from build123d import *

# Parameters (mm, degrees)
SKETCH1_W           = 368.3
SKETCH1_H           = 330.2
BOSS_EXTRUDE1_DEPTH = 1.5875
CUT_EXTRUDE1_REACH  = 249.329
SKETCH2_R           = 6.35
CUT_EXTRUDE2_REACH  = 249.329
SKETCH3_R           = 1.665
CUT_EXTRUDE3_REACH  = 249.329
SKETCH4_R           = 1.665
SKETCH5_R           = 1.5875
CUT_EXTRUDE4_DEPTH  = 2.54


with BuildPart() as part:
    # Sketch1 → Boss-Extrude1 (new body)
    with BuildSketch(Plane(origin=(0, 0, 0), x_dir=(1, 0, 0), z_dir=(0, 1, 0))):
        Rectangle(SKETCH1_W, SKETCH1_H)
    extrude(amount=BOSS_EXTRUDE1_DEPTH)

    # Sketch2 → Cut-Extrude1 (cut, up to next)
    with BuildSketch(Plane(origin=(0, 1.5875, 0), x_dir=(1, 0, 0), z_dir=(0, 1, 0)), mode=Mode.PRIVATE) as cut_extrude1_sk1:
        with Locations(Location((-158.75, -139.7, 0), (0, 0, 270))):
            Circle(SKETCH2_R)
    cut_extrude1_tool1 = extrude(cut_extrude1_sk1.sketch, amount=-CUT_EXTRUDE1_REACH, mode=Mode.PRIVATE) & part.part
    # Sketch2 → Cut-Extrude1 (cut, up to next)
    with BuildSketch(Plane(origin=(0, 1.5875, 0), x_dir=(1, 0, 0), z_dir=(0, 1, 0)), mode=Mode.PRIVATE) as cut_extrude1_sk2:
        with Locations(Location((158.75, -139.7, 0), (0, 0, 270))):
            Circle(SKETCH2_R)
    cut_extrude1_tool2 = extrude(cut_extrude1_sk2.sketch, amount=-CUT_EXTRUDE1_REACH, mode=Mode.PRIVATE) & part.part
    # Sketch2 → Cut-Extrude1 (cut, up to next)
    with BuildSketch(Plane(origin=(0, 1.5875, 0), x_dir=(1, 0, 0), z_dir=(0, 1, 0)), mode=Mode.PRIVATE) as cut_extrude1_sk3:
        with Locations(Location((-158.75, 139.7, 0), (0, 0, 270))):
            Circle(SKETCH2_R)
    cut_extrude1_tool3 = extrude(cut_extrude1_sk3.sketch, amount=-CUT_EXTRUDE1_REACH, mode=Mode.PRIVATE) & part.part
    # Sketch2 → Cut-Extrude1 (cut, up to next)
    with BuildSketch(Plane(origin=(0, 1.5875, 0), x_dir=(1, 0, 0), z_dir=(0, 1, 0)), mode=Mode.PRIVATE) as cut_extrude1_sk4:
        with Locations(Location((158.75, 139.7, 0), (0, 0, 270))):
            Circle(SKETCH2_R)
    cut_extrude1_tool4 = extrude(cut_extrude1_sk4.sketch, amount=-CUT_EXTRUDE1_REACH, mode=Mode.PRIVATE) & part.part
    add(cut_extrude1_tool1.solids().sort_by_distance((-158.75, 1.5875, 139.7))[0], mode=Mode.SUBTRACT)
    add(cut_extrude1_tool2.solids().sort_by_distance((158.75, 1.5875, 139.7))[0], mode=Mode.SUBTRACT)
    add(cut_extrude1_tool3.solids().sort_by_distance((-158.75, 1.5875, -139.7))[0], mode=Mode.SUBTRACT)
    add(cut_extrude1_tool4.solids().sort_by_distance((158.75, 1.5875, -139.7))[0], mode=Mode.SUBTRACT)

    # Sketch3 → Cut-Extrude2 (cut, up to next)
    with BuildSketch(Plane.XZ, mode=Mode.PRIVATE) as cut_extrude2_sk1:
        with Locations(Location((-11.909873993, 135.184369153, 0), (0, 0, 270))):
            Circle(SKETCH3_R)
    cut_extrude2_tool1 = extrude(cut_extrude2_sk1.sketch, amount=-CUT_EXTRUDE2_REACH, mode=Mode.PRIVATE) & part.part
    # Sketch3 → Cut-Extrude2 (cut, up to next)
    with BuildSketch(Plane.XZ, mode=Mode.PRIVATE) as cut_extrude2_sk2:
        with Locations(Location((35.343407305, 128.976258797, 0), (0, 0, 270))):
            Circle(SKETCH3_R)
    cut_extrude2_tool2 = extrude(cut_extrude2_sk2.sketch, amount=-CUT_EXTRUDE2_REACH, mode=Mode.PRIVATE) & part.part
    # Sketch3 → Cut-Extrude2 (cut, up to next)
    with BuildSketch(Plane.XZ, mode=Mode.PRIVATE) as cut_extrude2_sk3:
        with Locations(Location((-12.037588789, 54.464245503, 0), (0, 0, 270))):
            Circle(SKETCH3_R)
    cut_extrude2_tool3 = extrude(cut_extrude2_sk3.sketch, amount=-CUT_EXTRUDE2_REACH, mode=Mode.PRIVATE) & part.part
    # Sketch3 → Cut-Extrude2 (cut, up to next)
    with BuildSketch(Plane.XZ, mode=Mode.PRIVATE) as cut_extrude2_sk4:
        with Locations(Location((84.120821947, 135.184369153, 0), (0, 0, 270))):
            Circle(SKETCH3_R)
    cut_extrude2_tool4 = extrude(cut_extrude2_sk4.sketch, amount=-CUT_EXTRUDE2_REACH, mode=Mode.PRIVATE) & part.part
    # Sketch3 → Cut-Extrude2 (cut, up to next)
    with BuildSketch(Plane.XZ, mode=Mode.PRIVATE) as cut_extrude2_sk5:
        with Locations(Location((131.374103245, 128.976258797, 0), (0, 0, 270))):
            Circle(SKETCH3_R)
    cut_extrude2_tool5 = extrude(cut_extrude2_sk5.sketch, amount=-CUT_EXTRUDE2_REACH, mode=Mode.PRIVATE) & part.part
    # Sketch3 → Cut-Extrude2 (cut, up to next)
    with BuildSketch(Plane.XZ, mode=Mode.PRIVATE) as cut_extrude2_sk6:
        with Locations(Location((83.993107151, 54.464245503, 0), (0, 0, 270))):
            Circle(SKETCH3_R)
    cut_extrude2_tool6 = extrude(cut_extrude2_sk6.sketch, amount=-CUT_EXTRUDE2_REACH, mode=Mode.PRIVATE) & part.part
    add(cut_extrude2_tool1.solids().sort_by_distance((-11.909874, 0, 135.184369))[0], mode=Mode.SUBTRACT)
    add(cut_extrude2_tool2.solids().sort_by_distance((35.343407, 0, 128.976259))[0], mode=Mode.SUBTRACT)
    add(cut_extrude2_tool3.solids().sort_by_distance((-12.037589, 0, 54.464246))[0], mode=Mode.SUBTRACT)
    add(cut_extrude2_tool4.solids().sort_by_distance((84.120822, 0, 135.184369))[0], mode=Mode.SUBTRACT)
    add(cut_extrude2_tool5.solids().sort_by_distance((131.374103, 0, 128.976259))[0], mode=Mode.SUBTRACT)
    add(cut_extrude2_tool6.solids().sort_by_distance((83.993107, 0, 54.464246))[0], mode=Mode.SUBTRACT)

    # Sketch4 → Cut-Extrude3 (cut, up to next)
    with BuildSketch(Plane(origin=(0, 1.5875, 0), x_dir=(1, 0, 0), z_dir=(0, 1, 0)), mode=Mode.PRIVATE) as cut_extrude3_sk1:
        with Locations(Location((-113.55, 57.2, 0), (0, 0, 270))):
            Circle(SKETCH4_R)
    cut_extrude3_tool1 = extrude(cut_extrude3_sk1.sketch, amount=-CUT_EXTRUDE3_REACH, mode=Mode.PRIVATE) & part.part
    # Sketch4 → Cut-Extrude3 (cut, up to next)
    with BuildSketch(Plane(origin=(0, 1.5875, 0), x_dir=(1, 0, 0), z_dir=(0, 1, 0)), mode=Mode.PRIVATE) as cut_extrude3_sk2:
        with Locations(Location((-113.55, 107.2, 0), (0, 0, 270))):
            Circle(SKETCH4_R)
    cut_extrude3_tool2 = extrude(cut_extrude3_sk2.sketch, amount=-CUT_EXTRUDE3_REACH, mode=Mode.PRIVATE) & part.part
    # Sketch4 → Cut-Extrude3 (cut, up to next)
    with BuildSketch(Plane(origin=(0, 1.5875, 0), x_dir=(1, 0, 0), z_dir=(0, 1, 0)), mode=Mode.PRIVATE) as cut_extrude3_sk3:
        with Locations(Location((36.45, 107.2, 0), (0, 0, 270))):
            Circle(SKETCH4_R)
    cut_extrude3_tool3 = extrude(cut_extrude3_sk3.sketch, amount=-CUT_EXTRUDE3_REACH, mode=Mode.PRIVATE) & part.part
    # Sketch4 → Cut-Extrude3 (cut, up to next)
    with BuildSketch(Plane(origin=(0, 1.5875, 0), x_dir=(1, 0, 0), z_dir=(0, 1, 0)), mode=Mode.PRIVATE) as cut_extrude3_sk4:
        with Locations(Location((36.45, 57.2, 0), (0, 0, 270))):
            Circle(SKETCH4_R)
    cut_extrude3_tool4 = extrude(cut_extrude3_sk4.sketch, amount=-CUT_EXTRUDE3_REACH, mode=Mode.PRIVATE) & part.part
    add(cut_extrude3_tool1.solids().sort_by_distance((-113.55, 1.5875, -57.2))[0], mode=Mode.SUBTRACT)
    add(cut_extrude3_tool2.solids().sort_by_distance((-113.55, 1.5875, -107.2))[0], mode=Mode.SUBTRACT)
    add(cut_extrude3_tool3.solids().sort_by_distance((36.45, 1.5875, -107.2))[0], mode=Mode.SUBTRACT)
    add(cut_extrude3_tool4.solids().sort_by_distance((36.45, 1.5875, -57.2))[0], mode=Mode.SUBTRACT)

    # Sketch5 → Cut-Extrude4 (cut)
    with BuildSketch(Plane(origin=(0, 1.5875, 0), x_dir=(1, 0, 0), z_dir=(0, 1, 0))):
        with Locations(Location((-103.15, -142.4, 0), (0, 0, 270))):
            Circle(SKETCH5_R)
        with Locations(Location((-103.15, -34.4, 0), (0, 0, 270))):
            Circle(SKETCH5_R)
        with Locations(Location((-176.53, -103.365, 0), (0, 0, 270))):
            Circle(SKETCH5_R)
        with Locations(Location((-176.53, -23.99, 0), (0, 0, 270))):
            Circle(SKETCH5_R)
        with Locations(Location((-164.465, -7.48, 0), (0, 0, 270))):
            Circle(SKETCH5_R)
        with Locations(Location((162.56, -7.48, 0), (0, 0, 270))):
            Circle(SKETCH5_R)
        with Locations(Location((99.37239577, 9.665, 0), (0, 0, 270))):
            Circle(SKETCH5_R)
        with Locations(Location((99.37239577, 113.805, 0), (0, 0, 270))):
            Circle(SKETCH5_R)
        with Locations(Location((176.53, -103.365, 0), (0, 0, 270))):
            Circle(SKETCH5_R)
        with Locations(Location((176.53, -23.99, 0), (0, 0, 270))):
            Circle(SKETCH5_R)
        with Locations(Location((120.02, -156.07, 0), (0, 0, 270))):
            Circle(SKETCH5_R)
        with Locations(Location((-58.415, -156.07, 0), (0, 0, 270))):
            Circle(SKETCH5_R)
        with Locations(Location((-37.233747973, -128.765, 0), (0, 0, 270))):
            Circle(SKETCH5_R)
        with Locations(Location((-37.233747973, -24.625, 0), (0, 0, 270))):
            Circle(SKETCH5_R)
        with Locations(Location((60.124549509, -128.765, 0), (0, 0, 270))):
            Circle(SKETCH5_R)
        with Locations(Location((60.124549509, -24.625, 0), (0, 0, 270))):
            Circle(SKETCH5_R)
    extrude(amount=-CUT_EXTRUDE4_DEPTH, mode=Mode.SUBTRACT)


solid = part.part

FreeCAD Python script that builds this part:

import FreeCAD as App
import Part
import Sketcher
Q = App.Units.Quantity

doc = App.newDocument("Part")
body = doc.addObject("PartDesign::Body", "Body")

sketch1 = doc.addObject("Sketcher::SketchObject", "Sketch")
body.addObject(sketch1)
sketch1.AttachmentSupport = (doc.XZ_Plane, [""])
sketch1.MapMode = "FlatFace"
sketch1.addGeometry(Part.LineSegment(App.Vector(-184, -165, 0), App.Vector(-184, 165, 0)), False)
sketch1.addGeometry(Part.LineSegment(App.Vector(-184, 165, 0), App.Vector(184, 165, 0)), False)
sketch1.addGeometry(Part.LineSegment(App.Vector(184, 165, 0), App.Vector(184, -165, 0)), False)
sketch1.addGeometry(Part.LineSegment(App.Vector(184, -165, 0), App.Vector(-184, -165, 0)), False)
sketch1.addConstraint(Sketcher.Constraint("Coincident", 0, 2, 1, 1))
sketch1.addConstraint(Sketcher.Constraint("Coincident", 1, 2, 2, 1))
sketch1.addConstraint(Sketcher.Constraint("Coincident", 2, 2, 3, 1))
sketch1.addConstraint(Sketcher.Constraint("Coincident", 3, 2, 0, 1))
sketch1.addConstraint(Sketcher.Constraint("Vertical", 0))
sketch1.addConstraint(Sketcher.Constraint("Horizontal", 1))
sketch1.addConstraint(Sketcher.Constraint("Vertical", 2))
sketch1.addConstraint(Sketcher.Constraint("Horizontal", 3))
sketch1.addConstraint(Sketcher.Constraint("Symmetric", 0, 2, 2, 2, -1, 1))
sketch1.addConstraint(Sketcher.Constraint("DistanceY", 0, 1, 0, 2, Q("13 in")))
sketch1.addConstraint(Sketcher.Constraint("DistanceX", 1, 1, 1, 2, Q("14.5 in")))
pad1 = doc.addObject("PartDesign::Pad", "Pad")
body.addObject(pad1)
pad1.Profile = sketch1
pad1.Length = Q("0.0625 in")
pad1.Reversed = True

sketch2 = doc.addObject("Sketcher::SketchObject", "Sketch001")
body.addObject(sketch2)
sketch2.AttachmentSupport = (doc.XZ_Plane, [""])
sketch2.MapMode = "FlatFace"
sketch2.AttachmentOffset = App.Placement(App.Vector(0, 0, -0.0625 * 25.4), App.Rotation())
sketch2.addGeometry(Part.Circle(App.Vector(-159, 140, 0), App.Vector(0, 0, 1), 6), False)
sketch2.addConstraint(Sketcher.Constraint("Diameter", 0, Q("0.5 in")))
sketch2.addConstraint(Sketcher.Constraint("DistanceY", -1, 1, 0, 3, Q("5.5 in")))
sketch2.addConstraint(Sketcher.Constraint("DistanceX", 0, 3, -1, 1, Q("6.25 in")))
pocket1 = doc.addObject("PartDesign::Pocket", "Pocket")
body.addObject(pocket1)
pocket1.Profile = sketch2
pocket1.Type = "UpToFirst"
pocket1.Reversed = True

sketch3 = doc.addObject("Sketcher::SketchObject", "Sketch002")
body.addObject(sketch3)
sketch3.AttachmentSupport = (doc.XZ_Plane, [""])
sketch3.MapMode = "FlatFace"
sketch3.AttachmentOffset = App.Placement(App.Vector(0, 0, -0.0625 * 25.4), App.Rotation())
sketch3.addGeometry(Part.Circle(App.Vector(159, 140, 0), App.Vector(0, 0, 1), 6), False)
sketch3.addConstraint(Sketcher.Constraint("Diameter", 0, Q("0.5 in")))
sketch3.addConstraint(Sketcher.Constraint("DistanceY", -1, 1, 0, 3, Q("5.5 in")))
sketch3.addConstraint(Sketcher.Constraint("DistanceX", -1, 1, 0, 3, Q("6.25 in")))
pocket2 = doc.addObject("PartDesign::Pocket", "Pocket001")
body.addObject(pocket2)
pocket2.Profile = sketch3
pocket2.Type = "UpToFirst"
pocket2.Reversed = True

sketch4 = doc.addObject("Sketcher::SketchObject", "Sketch003")
body.addObject(sketch4)
sketch4.AttachmentSupport = (doc.XZ_Plane, [""])
sketch4.MapMode = "FlatFace"
sketch4.AttachmentOffset = App.Placement(App.Vector(0, 0, -0.0625 * 25.4), App.Rotation())
sketch4.addGeometry(Part.Circle(App.Vector(-159, -140, 0), App.Vector(0, 0, 1), 6), False)
sketch4.addConstraint(Sketcher.Constraint("Diameter", 0, Q("0.5 in")))
sketch4.addConstraint(Sketcher.Constraint("DistanceY", 0, 3, -1, 1, Q("5.5 in")))
sketch4.addConstraint(Sketcher.Constraint("DistanceX", 0, 3, -1, 1, Q("6.25 in")))
pocket3 = doc.addObject("PartDesign::Pocket", "Pocket002")
body.addObject(pocket3)
pocket3.Profile = sketch4
pocket3.Type = "UpToFirst"
pocket3.Reversed = True

sketch5 = doc.addObject("Sketcher::SketchObject", "Sketch004")
body.addObject(sketch5)
sketch5.AttachmentSupport = (doc.XZ_Plane, [""])
sketch5.MapMode = "FlatFace"
sketch5.AttachmentOffset = App.Placement(App.Vector(0, 0, -0.0625 * 25.4), App.Rotation())
sketch5.addGeometry(Part.Circle(App.Vector(159, -140, 0), App.Vector(0, 0, 1), 6), False)
sketch5.addConstraint(Sketcher.Constraint("Diameter", 0, Q("0.5 in")))
sketch5.addConstraint(Sketcher.Constraint("DistanceY", 0, 3, -1, 1, Q("5.5 in")))
sketch5.addConstraint(Sketcher.Constraint("DistanceX", -1, 1, 0, 3, Q("6.25 in")))
pocket4 = doc.addObject("PartDesign::Pocket", "Pocket003")
body.addObject(pocket4)
pocket4.Profile = sketch5
pocket4.Type = "UpToFirst"
pocket4.Reversed = True

sketch6 = doc.addObject("Sketcher::SketchObject", "Sketch005")
body.addObject(sketch6)
sketch6.AttachmentSupport = (doc.XZ_Plane, [""])
sketch6.MapMode = "FlatFace"
sketch6.addGeometry(Part.Circle(App.Vector(-11.9, 135.2, 0), App.Vector(0, 0, 1), 1.7), False)
sketch6.addConstraint(Sketcher.Constraint("Diameter", 0, Q("3.33 mm")))
sketch6.addConstraint(Sketcher.Constraint("DistanceY", -1, 1, 0, 3, Q("135.184369 mm")))
sketch6.addConstraint(Sketcher.Constraint("DistanceX", 0, 3, -1, 1, Q("11.909874 mm")))
pocket5 = doc.addObject("PartDesign::Pocket", "Pocket004")
body.addObject(pocket5)
pocket5.Profile = sketch6
pocket5.Type = "UpToFirst"

sketch7 = doc.addObject("Sketcher::SketchObject", "Sketch006")
body.addObject(sketch7)
sketch7.AttachmentSupport = (doc.XZ_Plane, [""])
sketch7.MapMode = "FlatFace"
sketch7.addGeometry(Part.Circle(App.Vector(35.3, 129, 0), App.Vector(0, 0, 1), 1.7), False)
sketch7.addConstraint(Sketcher.Constraint("Diameter", 0, Q("3.33 mm")))
sketch7.addConstraint(Sketcher.Constraint("DistanceY", -1, 1, 0, 3, Q("128.976259 mm")))
sketch7.addConstraint(Sketcher.Constraint("DistanceX", -1, 1, 0, 3, Q("35.343407 mm")))
pocket6 = doc.addObject("PartDesign::Pocket", "Pocket005")
body.addObject(pocket6)
pocket6.Profile = sketch7
pocket6.Type = "UpToFirst"

sketch8 = doc.addObject("Sketcher::SketchObject", "Sketch007")
body.addObject(sketch8)
sketch8.AttachmentSupport = (doc.XZ_Plane, [""])
sketch8.MapMode = "FlatFace"
sketch8.addGeometry(Part.Circle(App.Vector(-12, 54.5, 0), App.Vector(0, 0, 1), 1.7), False)
sketch8.addConstraint(Sketcher.Constraint("Diameter", 0, Q("3.33 mm")))
sketch8.addConstraint(Sketcher.Constraint("DistanceX", 0, 3, -1, 1, Q("12.037589 mm")))
sketch8.addConstraint(Sketcher.Constraint("DistanceY", -1, 1, 0, 3, Q("54.464246 mm")))
pocket7 = doc.addObject("PartDesign::Pocket", "Pocket006")
body.addObject(pocket7)
pocket7.Profile = sketch8
pocket7.Type = "UpToFirst"

sketch9 = doc.addObject("Sketcher::SketchObject", "Sketch008")
body.addObject(sketch9)
sketch9.AttachmentSupport = (doc.XZ_Plane, [""])
sketch9.MapMode = "FlatFace"
sketch9.addGeometry(Part.Circle(App.Vector(84.1, 135.2, 0), App.Vector(0, 0, 1), 1.7), False)
sketch9.addConstraint(Sketcher.Constraint("Diameter", 0, Q("3.33 mm")))
sketch9.addConstraint(Sketcher.Constraint("DistanceX", -1, 1, 0, 3, Q("84.120822 mm")))
sketch9.addConstraint(Sketcher.Constraint("DistanceY", -1, 1, 0, 3, Q("135.184369 mm")))
pocket8 = doc.addObject("PartDesign::Pocket", "Pocket007")
body.addObject(pocket8)
pocket8.Profile = sketch9
pocket8.Type = "UpToFirst"

sketch10 = doc.addObject("Sketcher::SketchObject", "Sketch009")
body.addObject(sketch10)
sketch10.AttachmentSupport = (doc.XZ_Plane, [""])
sketch10.MapMode = "FlatFace"
sketch10.addGeometry(Part.Circle(App.Vector(131.4, 129, 0), App.Vector(0, 0, 1), 1.7), False)
sketch10.addConstraint(Sketcher.Constraint("Diameter", 0, Q("3.33 mm")))
sketch10.addConstraint(Sketcher.Constraint("DistanceY", -1, 1, 0, 3, Q("128.976259 mm")))
sketch10.addConstraint(Sketcher.Constraint("DistanceX", -1, 1, 0, 3, Q("131.374103 mm")))
pocket9 = doc.addObject("PartDesign::Pocket", "Pocket008")
body.addObject(pocket9)
pocket9.Profile = sketch10
pocket9.Type = "UpToFirst"

sketch11 = doc.addObject("Sketcher::SketchObject", "Sketch010")
body.addObject(sketch11)
sketch11.AttachmentSupport = (doc.XZ_Plane, [""])
sketch11.MapMode = "FlatFace"
sketch11.addGeometry(Part.Circle(App.Vector(84, 54.5, 0), App.Vector(0, 0, 1), 1.7), False)
sketch11.addConstraint(Sketcher.Constraint("Diameter", 0, Q("3.33 mm")))
sketch11.addConstraint(Sketcher.Constraint("DistanceX", -1, 1, 0, 3, Q("83.993107 mm")))
sketch11.addConstraint(Sketcher.Constraint("DistanceY", -1, 1, 0, 3, Q("54.464246 mm")))
pocket10 = doc.addObject("PartDesign::Pocket", "Pocket009")
body.addObject(pocket10)
pocket10.Profile = sketch11
pocket10.Type = "UpToFirst"

sketch12 = doc.addObject("Sketcher::SketchObject", "Sketch011")
body.addObject(sketch12)
sketch12.AttachmentSupport = (doc.XZ_Plane, [""])
sketch12.MapMode = "FlatFace"
sketch12.AttachmentOffset = App.Placement(App.Vector(0, 0, -0.0625 * 25.4), App.Rotation())
sketch12.addGeometry(Part.Circle(App.Vector(-113.5, -57.2, 0), App.Vector(0, 0, 1), 1.7), False)
sketch12.addConstraint(Sketcher.Constraint("Diameter", 0, Q("3.33 mm")))
sketch12.addConstraint(Sketcher.Constraint("DistanceX", 0, 3, -1, 1, Q("113.55 mm")))
sketch12.addConstraint(Sketcher.Constraint("DistanceY", 0, 3, -1, 1, Q("57.2 mm")))
pocket11 = doc.addObject("PartDesign::Pocket", "Pocket010")
body.addObject(pocket11)
pocket11.Profile = sketch12
pocket11.Type = "UpToFirst"
pocket11.Reversed = True

sketch13 = doc.addObject("Sketcher::SketchObject", "Sketch012")
body.addObject(sketch13)
sketch13.AttachmentSupport = (doc.XZ_Plane, [""])
sketch13.MapMode = "FlatFace"
sketch13.AttachmentOffset = App.Placement(App.Vector(0, 0, -0.0625 * 25.4), App.Rotation())
sketch13.addGeometry(Part.Circle(App.Vector(-113.5, -107.2, 0), App.Vector(0, 0, 1), 1.7), False)
sketch13.addConstraint(Sketcher.Constraint("Diameter", 0, Q("3.33 mm")))
sketch13.addConstraint(Sketcher.Constraint("DistanceX", 0, 3, -1, 1, Q("113.55 mm")))
sketch13.addConstraint(Sketcher.Constraint("DistanceY", 0, 3, -1, 1, Q("107.2 mm")))
pocket12 = doc.addObject("PartDesign::Pocket", "Pocket011")
body.addObject(pocket12)
pocket12.Profile = sketch13
pocket12.Type = "UpToFirst"
pocket12.Reversed = True

sketch14 = doc.addObject("Sketcher::SketchObject", "Sketch013")
body.addObject(sketch14)
sketch14.AttachmentSupport = (doc.XZ_Plane, [""])
sketch14.MapMode = "FlatFace"
sketch14.AttachmentOffset = App.Placement(App.Vector(0, 0, -0.0625 * 25.4), App.Rotation())
sketch14.addGeometry(Part.Circle(App.Vector(36.5, -107.2, 0), App.Vector(0, 0, 1), 1.7), False)
sketch14.addConstraint(Sketcher.Constraint("Diameter", 0, Q("3.33 mm")))
sketch14.addConstraint(Sketcher.Constraint("DistanceX", -1, 1, 0, 3, Q("36.45 mm")))
sketch14.addConstraint(Sketcher.Constraint("DistanceY", 0, 3, -1, 1, Q("107.2 mm")))
pocket13 = doc.addObject("PartDesign::Pocket", "Pocket012")
body.addObject(pocket13)
pocket13.Profile = sketch14
pocket13.Type = "UpToFirst"
pocket13.Reversed = True

sketch15 = doc.addObject("Sketcher::SketchObject", "Sketch014")
body.addObject(sketch15)
sketch15.AttachmentSupport = (doc.XZ_Plane, [""])
sketch15.MapMode = "FlatFace"
sketch15.AttachmentOffset = App.Placement(App.Vector(0, 0, -0.0625 * 25.4), App.Rotation())
sketch15.addGeometry(Part.Circle(App.Vector(36.5, -57.2, 0), App.Vector(0, 0, 1), 1.7), False)
sketch15.addConstraint(Sketcher.Constraint("Diameter", 0, Q("3.33 mm")))
sketch15.addConstraint(Sketcher.Constraint("DistanceX", -1, 1, 0, 3, Q("36.45 mm")))
sketch15.addConstraint(Sketcher.Constraint("DistanceY", 0, 3, -1, 1, Q("57.2 mm")))
pocket14 = doc.addObject("PartDesign::Pocket", "Pocket013")
body.addObject(pocket14)
pocket14.Profile = sketch15
pocket14.Type = "UpToFirst"
pocket14.Reversed = True

sketch16 = doc.addObject("Sketcher::SketchObject", "Sketch015")
body.addObject(sketch16)
sketch16.AttachmentSupport = (doc.XZ_Plane, [""])
sketch16.MapMode = "FlatFace"
sketch16.AttachmentOffset = App.Placement(App.Vector(0, 0, -0.0625 * 25.4), App.Rotation())
sketch16.addGeometry(Part.Circle(App.Vector(-103.2, 142.4, 0), App.Vector(0, 0, 1), 1.6), False)
sketch16.addGeometry(Part.Circle(App.Vector(-103.2, 34.4, 0), App.Vector(0, 0, 1), 1.6), False)
sketch16.addGeometry(Part.Circle(App.Vector(-176.5, 103.4, 0), App.Vector(0, 0, 1), 1.6), False)
sketch16.addGeometry(Part.Circle(App.Vector(-176.5, 24, 0), App.Vector(0, 0, 1), 1.6), False)
sketch16.addGeometry(Part.Circle(App.Vector(-164.5, 7.5, 0), App.Vector(0, 0, 1), 1.6), False)
sketch16.addGeometry(Part.Circle(App.Vector(162.6, 7.5, 0), App.Vector(0, 0, 1), 1.6), False)
sketch16.addGeometry(Part.Circle(App.Vector(99.4, -9.7, 0), App.Vector(0, 0, 1), 1.6), False)
sketch16.addGeometry(Part.Circle(App.Vector(99.4, -113.8, 0), App.Vector(0, 0, 1), 1.6), False)
sketch16.addGeometry(Part.Circle(App.Vector(176.5, 103.4, 0), App.Vector(0, 0, 1), 1.6), False)
sketch16.addGeometry(Part.Circle(App.Vector(176.5, 24, 0), App.Vector(0, 0, 1), 1.6), False)
sketch16.addGeometry(Part.Circle(App.Vector(120, 156.1, 0), App.Vector(0, 0, 1), 1.6), False)
sketch16.addGeometry(Part.Circle(App.Vector(-58.4, 156.1, 0), App.Vector(0, 0, 1), 1.6), False)
sketch16.addGeometry(Part.Circle(App.Vector(-37.2, 128.8, 0), App.Vector(0, 0, 1), 1.6), False)
sketch16.addGeometry(Part.Circle(App.Vector(-37.2, 24.6, 0), App.Vector(0, 0, 1), 1.6), False)
sketch16.addGeometry(Part.Circle(App.Vector(60.1, 128.8, 0), App.Vector(0, 0, 1), 1.6), False)
sketch16.addGeometry(Part.Circle(App.Vector(60.1, 24.6, 0), App.Vector(0, 0, 1), 1.6), False)
sketch16.addConstraint(Sketcher.Constraint("Equal", 0, 1))
sketch16.addConstraint(Sketcher.Constraint("Equal", 1, 2))
sketch16.addConstraint(Sketcher.Constraint("Equal", 2, 3))
sketch16.addConstraint(Sketcher.Constraint("Equal", 3, 4))
sketch16.addConstraint(Sketcher.Constraint("Equal", 4, 5))
sketch16.addConstraint(Sketcher.Constraint("Equal", 5, 6))
sketch16.addConstraint(Sketcher.Constraint("Equal", 6, 7))
sketch16.addConstraint(Sketcher.Constraint("Equal", 7, 8))
sketch16.addConstraint(Sketcher.Constraint("Equal", 8, 9))
sketch16.addConstraint(Sketcher.Constraint("Equal", 9, 10))
sketch16.addConstraint(Sketcher.Constraint("Equal", 10, 11))
sketch16.addConstraint(Sketcher.Constraint("Equal", 11, 12))
sketch16.addConstraint(Sketcher.Constraint("Equal", 12, 13))
sketch16.addConstraint(Sketcher.Constraint("Equal", 13, 14))
sketch16.addConstraint(Sketcher.Constraint("Equal", 14, 15))
sketch16.addConstraint(Sketcher.Constraint("Symmetric", 2, 3, 8, 3, -2))
sketch16.addConstraint(Sketcher.Constraint("Symmetric", 3, 3, 9, 3, -2))
sketch16.addConstraint(Sketcher.Constraint("Horizontal", 4, 3, 5, 3))
sketch16.addConstraint(Sketcher.Constraint("Horizontal", 10, 3, 11, 3))
sketch16.addConstraint(Sketcher.Constraint("Horizontal", 12, 3, 14, 3))
sketch16.addConstraint(Sketcher.Constraint("Horizontal", 13, 3, 15, 3))
sketch16.addConstraint(Sketcher.Constraint("Vertical", 0, 3, 1, 3))
sketch16.addConstraint(Sketcher.Constraint("Vertical", 2, 3, 3, 3))
sketch16.addConstraint(Sketcher.Constraint("Vertical", 6, 3, 7, 3))
sketch16.addConstraint(Sketcher.Constraint("Vertical", 12, 3, 13, 3))
sketch16.addConstraint(Sketcher.Constraint("Vertical", 14, 3, 15, 3))
sketch16.addConstraint(Sketcher.Constraint("Diameter", 0, Q("0.125 in")))
sketch16.addConstraint(Sketcher.Constraint("DistanceY", 2, 3, 12, 3, Q("1 in")))
sketch16.addConstraint(Sketcher.Constraint("DistanceX", -1, 1, 5, 3, Q("6.4 in")))
sketch16.addConstraint(Sketcher.Constraint("DistanceY", 7, 3, 6, 3, Q("4.1 in")))
sketch16.addConstraint(Sketcher.Constraint("DistanceY", 9, 3, 10, 3, Q("5.2 in")))
sketch16.addConstraint(Sketcher.Constraint("DistanceY", 13, 3, 12, 3, Q("4.1 in")))
sketch16.addConstraint(Sketcher.Constraint("DistanceX", 2, 3, -1, 1, Q("6.95 in")))
sketch16.addConstraint(Sketcher.Constraint("DistanceY", 4, 3, 3, 3, Q("0.65 in")))
sketch16.addConstraint(Sketcher.Constraint("DistanceY", 6, 3, 8, 3, Q("4.45 in")))
sketch16.addConstraint(Sketcher.Constraint("DistanceX", 4, 3, -1, 1, Q("6.475 in")))
sketch16.addConstraint(Sketcher.Constraint("DistanceY", 3, 3, 2, 3, Q("3.125 in")))
sketch16.addConstraint(Sketcher.Constraint("DistanceX", 11, 3, 10, 3, Q("7.025 in")))
sketch16.addConstraint(Sketcher.Constraint("DistanceX", 0, 3, -1, 1, Q("103.15 mm")))
sketch16.addConstraint(Sketcher.Constraint("DistanceY", -1, 1, 0, 3, Q("142.4 mm")))
sketch16.addConstraint(Sketcher.Constraint("DistanceY", -1, 1, 1, 3, Q("34.4 mm")))
sketch16.addConstraint(Sketcher.Constraint("DistanceY", -1, 1, 2, 3, Q("103.365 mm")))
sketch16.addConstraint(Sketcher.Constraint("DistanceX", -1, 1, 10, 3, Q("120.02 mm")))
sketch16.addConstraint(Sketcher.Constraint("DistanceX", -1, 1, 14, 3, Q("60.12455 mm")))
sketch16.addConstraint(Sketcher.Constraint("DistanceX", -1, 1, 6, 3, Q("99.372396 mm")))
sketch16.addConstraint(Sketcher.Constraint("DistanceX", 12, 3, -1, 1, Q("37.233748 mm")))
pocket15 = doc.addObject("PartDesign::Pocket", "Pocket014")
body.addObject(pocket15)
pocket15.Profile = sketch16
pocket15.Length = Q("0.1 in")
pocket15.Reversed = True

doc.recompute()
